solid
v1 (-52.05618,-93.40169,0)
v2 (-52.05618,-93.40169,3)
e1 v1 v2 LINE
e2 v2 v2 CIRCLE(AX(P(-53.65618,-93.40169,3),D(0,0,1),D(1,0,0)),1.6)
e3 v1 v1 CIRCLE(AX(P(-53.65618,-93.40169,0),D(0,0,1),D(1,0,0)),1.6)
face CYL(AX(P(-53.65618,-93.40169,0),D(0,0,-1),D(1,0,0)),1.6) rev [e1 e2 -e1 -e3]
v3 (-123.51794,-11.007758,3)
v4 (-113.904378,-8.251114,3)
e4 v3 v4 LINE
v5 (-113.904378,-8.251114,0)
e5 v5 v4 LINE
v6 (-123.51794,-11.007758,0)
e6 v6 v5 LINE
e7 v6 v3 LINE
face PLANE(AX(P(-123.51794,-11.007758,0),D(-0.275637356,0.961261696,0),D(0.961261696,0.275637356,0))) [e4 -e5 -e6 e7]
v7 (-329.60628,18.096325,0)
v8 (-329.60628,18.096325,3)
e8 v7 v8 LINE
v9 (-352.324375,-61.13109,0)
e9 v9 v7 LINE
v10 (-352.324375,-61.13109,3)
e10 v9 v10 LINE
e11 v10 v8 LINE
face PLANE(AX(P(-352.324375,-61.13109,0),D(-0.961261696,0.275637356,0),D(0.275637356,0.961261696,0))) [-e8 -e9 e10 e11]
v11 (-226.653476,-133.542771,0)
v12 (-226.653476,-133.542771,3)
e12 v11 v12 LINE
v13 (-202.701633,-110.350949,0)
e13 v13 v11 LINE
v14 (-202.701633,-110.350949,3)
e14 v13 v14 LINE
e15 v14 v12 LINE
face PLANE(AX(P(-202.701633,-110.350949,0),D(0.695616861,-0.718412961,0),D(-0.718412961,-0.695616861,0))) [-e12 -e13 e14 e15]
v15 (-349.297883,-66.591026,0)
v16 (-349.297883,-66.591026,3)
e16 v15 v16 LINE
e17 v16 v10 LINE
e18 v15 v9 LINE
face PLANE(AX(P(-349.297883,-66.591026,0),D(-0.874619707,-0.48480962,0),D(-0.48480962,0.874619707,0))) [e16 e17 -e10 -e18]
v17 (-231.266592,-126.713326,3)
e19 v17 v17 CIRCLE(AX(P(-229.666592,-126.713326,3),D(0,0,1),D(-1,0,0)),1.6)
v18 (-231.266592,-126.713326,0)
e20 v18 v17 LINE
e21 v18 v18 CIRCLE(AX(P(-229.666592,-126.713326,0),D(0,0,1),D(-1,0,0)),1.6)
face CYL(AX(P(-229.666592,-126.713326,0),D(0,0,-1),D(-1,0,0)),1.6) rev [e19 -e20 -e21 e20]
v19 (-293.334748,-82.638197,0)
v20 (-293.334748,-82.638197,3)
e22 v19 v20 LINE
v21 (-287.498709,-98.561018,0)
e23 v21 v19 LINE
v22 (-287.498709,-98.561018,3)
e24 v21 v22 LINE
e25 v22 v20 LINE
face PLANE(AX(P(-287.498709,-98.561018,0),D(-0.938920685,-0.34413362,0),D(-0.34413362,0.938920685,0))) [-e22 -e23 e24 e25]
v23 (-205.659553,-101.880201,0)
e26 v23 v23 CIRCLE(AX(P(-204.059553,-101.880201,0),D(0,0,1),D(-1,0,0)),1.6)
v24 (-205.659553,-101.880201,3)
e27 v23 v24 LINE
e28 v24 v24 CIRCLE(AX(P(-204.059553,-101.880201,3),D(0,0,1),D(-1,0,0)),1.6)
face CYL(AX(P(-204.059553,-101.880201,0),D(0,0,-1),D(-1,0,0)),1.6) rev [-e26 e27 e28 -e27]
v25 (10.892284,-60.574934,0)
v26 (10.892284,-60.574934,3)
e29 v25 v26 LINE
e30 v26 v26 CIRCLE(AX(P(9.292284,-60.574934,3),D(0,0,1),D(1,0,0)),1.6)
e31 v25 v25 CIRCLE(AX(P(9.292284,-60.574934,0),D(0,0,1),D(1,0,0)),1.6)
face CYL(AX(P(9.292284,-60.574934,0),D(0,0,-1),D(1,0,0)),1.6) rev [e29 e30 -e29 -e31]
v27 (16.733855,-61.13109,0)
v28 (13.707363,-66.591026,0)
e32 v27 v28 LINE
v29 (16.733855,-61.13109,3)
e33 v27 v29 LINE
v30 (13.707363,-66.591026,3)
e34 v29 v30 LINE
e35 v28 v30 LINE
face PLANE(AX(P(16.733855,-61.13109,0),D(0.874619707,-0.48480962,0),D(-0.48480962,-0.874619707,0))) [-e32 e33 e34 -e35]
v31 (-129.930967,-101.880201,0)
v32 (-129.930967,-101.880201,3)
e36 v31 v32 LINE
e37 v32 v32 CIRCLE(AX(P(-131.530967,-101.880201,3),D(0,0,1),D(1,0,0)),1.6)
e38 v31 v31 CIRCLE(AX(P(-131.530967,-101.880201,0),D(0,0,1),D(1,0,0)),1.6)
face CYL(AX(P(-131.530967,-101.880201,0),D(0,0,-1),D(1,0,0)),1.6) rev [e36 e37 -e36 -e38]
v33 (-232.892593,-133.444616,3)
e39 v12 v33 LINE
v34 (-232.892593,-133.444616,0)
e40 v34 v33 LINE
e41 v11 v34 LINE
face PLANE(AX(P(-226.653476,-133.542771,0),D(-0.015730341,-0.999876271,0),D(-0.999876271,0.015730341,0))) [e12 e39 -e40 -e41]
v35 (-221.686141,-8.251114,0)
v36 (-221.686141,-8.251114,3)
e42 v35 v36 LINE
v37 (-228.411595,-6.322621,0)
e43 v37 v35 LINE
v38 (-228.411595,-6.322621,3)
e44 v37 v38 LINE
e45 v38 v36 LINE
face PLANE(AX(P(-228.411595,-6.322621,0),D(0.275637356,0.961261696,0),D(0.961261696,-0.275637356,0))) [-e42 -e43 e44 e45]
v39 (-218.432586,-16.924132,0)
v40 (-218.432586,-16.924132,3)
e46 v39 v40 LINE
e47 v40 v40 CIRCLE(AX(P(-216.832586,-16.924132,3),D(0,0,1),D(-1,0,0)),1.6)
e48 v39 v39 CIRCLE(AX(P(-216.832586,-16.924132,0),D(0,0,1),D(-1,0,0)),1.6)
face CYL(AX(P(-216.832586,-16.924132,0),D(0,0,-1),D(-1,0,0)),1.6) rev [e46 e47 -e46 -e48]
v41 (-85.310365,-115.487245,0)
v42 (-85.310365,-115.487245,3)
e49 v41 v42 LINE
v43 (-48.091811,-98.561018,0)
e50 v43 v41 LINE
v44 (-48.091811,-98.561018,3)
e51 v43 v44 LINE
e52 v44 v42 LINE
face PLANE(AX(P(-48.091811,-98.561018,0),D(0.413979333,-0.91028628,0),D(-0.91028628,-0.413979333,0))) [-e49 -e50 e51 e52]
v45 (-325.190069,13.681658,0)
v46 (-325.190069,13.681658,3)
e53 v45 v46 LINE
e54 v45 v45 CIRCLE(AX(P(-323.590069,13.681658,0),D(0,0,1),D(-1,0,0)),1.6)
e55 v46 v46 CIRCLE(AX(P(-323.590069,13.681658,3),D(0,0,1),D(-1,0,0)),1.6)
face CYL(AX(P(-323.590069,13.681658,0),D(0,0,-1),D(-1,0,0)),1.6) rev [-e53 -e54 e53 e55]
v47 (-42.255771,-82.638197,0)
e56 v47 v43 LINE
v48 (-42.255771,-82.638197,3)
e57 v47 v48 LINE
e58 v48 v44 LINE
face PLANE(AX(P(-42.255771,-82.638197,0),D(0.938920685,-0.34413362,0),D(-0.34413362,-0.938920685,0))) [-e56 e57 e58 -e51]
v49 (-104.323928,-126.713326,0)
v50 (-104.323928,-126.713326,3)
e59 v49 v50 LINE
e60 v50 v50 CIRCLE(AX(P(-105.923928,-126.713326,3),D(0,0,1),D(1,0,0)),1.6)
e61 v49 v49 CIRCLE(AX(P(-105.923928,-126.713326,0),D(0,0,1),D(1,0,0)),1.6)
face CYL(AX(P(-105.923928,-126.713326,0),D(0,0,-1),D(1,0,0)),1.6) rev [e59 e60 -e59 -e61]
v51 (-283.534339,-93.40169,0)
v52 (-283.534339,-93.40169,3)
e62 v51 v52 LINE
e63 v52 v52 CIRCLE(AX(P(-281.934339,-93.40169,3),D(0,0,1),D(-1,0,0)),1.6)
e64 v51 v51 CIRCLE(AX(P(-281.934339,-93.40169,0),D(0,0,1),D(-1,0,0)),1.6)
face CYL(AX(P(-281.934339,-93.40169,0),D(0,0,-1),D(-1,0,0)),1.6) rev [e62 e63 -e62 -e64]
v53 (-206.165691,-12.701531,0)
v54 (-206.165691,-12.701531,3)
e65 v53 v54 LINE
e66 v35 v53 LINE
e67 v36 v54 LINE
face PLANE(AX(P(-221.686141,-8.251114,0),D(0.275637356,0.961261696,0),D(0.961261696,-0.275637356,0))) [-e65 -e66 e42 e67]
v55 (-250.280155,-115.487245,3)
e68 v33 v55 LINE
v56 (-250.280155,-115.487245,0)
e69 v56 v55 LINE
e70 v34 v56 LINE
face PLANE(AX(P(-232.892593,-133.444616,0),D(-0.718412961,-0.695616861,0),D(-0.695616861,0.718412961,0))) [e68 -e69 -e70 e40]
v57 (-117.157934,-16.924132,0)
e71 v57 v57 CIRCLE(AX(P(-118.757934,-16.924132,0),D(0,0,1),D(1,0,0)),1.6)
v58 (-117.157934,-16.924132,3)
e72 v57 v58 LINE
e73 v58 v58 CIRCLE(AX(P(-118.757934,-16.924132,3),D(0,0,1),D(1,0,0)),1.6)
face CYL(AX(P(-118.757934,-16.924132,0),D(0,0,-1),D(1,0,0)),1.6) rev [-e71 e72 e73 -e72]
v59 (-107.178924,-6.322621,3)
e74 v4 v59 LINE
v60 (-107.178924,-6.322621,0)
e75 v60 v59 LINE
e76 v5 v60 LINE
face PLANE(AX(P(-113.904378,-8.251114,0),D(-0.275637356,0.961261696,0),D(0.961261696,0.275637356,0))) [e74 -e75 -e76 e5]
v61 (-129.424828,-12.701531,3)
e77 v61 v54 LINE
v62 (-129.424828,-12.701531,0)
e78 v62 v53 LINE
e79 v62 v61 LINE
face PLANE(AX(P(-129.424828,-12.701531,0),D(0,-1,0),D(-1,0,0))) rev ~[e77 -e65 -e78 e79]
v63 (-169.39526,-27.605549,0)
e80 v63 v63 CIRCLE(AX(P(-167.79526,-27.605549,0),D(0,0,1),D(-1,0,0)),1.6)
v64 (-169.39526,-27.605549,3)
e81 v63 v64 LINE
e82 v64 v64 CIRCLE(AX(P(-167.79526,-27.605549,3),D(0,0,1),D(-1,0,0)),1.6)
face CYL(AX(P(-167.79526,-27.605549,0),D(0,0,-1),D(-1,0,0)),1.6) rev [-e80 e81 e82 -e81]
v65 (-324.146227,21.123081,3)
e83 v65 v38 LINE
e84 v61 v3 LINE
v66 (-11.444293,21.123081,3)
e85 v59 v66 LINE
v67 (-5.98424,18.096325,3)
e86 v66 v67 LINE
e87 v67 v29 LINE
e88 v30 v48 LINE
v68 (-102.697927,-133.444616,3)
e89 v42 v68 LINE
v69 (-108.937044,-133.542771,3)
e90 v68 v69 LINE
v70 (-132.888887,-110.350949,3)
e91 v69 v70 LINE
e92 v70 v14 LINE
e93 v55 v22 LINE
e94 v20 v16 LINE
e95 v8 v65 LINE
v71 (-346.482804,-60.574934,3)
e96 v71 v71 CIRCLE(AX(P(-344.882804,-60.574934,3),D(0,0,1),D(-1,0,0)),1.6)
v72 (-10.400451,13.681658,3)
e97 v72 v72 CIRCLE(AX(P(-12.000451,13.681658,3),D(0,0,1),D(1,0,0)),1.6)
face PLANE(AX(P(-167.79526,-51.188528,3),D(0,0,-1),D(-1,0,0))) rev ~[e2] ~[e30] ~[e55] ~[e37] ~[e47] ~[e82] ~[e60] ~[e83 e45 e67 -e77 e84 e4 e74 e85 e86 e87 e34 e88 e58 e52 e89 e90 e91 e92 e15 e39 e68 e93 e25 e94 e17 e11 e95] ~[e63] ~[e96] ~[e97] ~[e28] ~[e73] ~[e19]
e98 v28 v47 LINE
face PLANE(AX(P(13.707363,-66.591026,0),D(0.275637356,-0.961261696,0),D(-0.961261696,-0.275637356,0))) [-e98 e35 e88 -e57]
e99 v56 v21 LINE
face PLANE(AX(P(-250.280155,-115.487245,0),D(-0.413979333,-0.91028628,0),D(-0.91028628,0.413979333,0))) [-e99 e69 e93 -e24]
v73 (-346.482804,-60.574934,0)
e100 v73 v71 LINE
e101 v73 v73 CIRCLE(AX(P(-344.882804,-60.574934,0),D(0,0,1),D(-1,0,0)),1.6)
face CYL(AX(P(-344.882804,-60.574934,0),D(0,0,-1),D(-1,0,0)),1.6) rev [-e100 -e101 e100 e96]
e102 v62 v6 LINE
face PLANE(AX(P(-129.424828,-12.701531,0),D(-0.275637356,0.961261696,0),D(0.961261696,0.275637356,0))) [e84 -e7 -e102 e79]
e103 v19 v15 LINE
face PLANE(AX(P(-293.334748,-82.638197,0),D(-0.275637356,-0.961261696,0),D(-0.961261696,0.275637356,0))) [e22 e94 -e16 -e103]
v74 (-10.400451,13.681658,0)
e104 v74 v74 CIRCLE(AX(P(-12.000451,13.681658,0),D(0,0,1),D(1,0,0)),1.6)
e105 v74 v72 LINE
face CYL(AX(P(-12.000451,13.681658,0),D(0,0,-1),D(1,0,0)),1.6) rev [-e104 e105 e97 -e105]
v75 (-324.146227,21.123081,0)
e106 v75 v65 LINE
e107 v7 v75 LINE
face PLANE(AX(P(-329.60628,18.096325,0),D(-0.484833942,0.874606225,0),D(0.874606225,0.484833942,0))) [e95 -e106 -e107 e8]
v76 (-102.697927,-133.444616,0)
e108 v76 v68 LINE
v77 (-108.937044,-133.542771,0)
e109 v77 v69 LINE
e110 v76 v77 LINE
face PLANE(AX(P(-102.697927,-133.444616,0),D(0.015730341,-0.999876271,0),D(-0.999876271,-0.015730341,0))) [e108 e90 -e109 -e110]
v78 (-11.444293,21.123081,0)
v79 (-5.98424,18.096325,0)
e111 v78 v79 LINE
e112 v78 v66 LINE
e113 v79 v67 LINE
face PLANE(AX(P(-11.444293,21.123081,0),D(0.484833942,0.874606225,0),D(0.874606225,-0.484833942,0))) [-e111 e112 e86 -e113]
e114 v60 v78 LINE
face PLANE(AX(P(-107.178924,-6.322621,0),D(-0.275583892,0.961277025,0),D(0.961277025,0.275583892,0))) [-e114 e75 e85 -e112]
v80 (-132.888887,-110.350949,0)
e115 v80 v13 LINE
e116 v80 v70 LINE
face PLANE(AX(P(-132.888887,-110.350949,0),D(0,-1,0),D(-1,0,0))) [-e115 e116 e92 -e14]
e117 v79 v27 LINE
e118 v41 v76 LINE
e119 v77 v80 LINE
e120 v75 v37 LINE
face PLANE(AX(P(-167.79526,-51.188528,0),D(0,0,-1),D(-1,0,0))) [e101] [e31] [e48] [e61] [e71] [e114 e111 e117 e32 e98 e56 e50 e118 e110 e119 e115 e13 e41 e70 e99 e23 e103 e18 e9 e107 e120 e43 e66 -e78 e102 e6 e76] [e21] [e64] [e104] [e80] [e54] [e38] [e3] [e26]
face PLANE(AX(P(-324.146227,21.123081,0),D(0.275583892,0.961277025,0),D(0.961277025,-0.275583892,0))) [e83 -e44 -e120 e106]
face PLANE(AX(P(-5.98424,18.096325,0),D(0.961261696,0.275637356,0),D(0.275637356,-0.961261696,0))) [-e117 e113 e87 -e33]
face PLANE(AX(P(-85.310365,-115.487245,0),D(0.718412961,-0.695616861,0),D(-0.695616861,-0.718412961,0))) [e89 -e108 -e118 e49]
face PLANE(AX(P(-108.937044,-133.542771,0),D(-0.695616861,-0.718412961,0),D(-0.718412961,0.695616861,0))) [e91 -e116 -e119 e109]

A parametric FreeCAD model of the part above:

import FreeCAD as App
import Part
import Sketcher
from FreeCAD import Vector
Q = App.Units.Quantity


def add_polygon(sketch, points):
    """Adds a closed chain of lines whose ends are joined by coincident constraints."""
    first, n = sketch.GeometryCount, len(points)
    for a, b in zip(points, points[1:] + points[:1]):
        sketch.addGeometry(Part.LineSegment(App.Vector(*a, 0), App.Vector(*b, 0)), False)
    for i in range(n):
        sketch.addConstraint(Sketcher.Constraint("Coincident", first + i, 2, first + (i + 1) % n, 1))

doc = App.newDocument("Part")
body = doc.addObject("PartDesign::Body", "Body")

# Sketch on XY plane
sketch1 = body.newObject("Sketcher::SketchObject", "Sketch")
sketch1.AttachmentSupport = (doc.getObject("XY_Plane"), [""])
sketch1.MapMode = "FlatFace"
add_polygon(sketch1, [(-228.4, -6.3), (-324.1, 21.1), (-329.6, 18.1), (-352.3, -61.1), (-349.3, -66.6), (-293.3, -82.6), (-287.5, -98.6), (-250.3, -115.5), (-232.9, -133.4), (-226.7, -133.5), (-202.7, -110.4), (-132.9, -110.4), (-108.9, -133.5), (-102.7, -133.4), (-85.3, -115.5), (-48.1, -98.6), (-42.3, -82.6), (13.7, -66.6), (16.7, -61.1), (-6, 18.1), (-11.4, 21.1), (-107.2, -6.3), (-113.9, -8.3), (-123.5, -11), (-129.4, -12.7), (-206.2, -12.7), (-221.7, -8.3)])  # lines 0-26
sketch1.addGeometry(Part.Circle(Vector(-53.7, -93.4, 0), Vector(0, 0, 1), 1.6), False)  # 27
sketch1.addGeometry(Part.Circle(Vector(-105.9, -126.7, 0), Vector(0, 0, 1), 1.6), False)  # 28
sketch1.addGeometry(Part.Circle(Vector(-131.5, -101.9, 0), Vector(0, 0, 1), 1.6), False)  # 29
sketch1.addGeometry(Part.Circle(Vector(9.3, -60.6, 0), Vector(0, 0, 1), 1.6), False)  # 30
sketch1.addGeometry(Part.Circle(Vector(-229.7, -126.7, 0), Vector(0, 0, 1), 1.6), False)  # 31
sketch1.addGeometry(Part.Circle(Vector(-204.1, -101.9, 0), Vector(0, 0, 1), 1.6), False)  # 32
sketch1.addGeometry(Part.Circle(Vector(-281.9, -93.4, 0), Vector(0, 0, 1), 1.6), False)  # 33
sketch1.addGeometry(Part.Circle(Vector(-344.9, -60.6, 0), Vector(0, 0, 1), 1.6), False)  # 34
sketch1.addGeometry(Part.Circle(Vector(-12, 13.7, 0), Vector(0, 0, 1), 1.6), False)  # 35
sketch1.addGeometry(Part.Circle(Vector(-118.8, -16.9, 0), Vector(0, 0, 1), 1.6), False)  # 36
sketch1.addGeometry(Part.Circle(Vector(-167.8, -27.6, 0), Vector(0, 0, 1), 1.6), False)  # 37
sketch1.addGeometry(Part.Circle(Vector(-216.8, -16.9, 0), Vector(0, 0, 1), 1.6), False)  # 38
sketch1.addGeometry(Part.Circle(Vector(-323.6, 13.7, 0), Vector(0, 0, 1), 1.6), False)  # 39
sketch1.addConstraint([
    Sketcher.Constraint("Horizontal", 10),
    Sketcher.Constraint("Horizontal", 24),
    Sketcher.Constraint("Equal", 27, 28),
    Sketcher.Constraint("Equal", 28, 29),
    Sketcher.Constraint("Equal", 29, 30),
    Sketcher.Constraint("Equal", 30, 31),
    Sketcher.Constraint("Equal", 31, 32),
    Sketcher.Constraint("Equal", 32, 33),
    Sketcher.Constraint("Equal", 33, 34),
    Sketcher.Constraint("Equal", 34, 35),
    Sketcher.Constraint("Equal", 35, 36),
    Sketcher.Constraint("Equal", 36, 37),
    Sketcher.Constraint("Equal", 37, 38),
    Sketcher.Constraint("Equal", 38, 39),
    Sketcher.Constraint("Perpendicular", 2, 4),
    Sketcher.Constraint("Perpendicular", 7, 9),
    Sketcher.Constraint("Perpendicular", 11, 13),
    Sketcher.Constraint("Perpendicular", 16, 18),
    Sketcher.Constraint("Perpendicular", 18, 21),
    Sketcher.Constraint("Parallel", 21, 22),
    Sketcher.Constraint("Parallel", 22, 23),
    Sketcher.Constraint("Parallel", 4, 25),
    Sketcher.Constraint("Parallel", 25, 26),
    Sketcher.Constraint("Horizontal", 28, 3, 31, 3),
    Sketcher.Constraint("Horizontal", 29, 3, 32, 3),
    Sketcher.Constraint("Horizontal", 27, 3, 33, 3),
    Sketcher.Constraint("Horizontal", 30, 3, 34, 3),
    Sketcher.Constraint("Horizontal", 36, 3, 38, 3),
    Sketcher.Constraint("Horizontal", 35, 3, 39, 3),
    Sketcher.Constraint("Horizontal", 8, 2, 11, 2),
    Sketcher.Constraint("Horizontal", 7, 2, 12, 2),
    Sketcher.Constraint("Horizontal", 6, 2, 13, 2),
    Sketcher.Constraint("Horizontal", 5, 2, 14, 2),
    Sketcher.Constraint("Horizontal", 4, 2, 15, 2),
    Sketcher.Constraint("Horizontal", 3, 2, 16, 2),
    Sketcher.Constraint("Horizontal", 2, 2, 17, 2),
    Sketcher.Constraint("Horizontal", 1, 2, 18, 2),
    Sketcher.Constraint("Horizontal", 0, 2, 19, 2),
    Sketcher.Constraint("Horizontal", 21, 2, 25, 2),
    Sketcher.Constraint("Horizontal", 20, 2, 26, 2),
    Sketcher.Constraint("Equal", 9, 11),
    Sketcher.Constraint("Equal", 8, 12),
    Sketcher.Constraint("Equal", 6, 14),
    Sketcher.Constraint("Equal", 5, 15),
    Sketcher.Constraint("Equal", 4, 16),
    Sketcher.Constraint("Equal", 3, 17),
    Sketcher.Constraint("Equal", 1, 19),
    Sketcher.Constraint("Equal", 0, 20),
    Sketcher.Constraint("Diameter", 27, Q("3.2 mm")),
    Sketcher.Constraint("Angle", 2, Q("-106 deg")),
    Sketcher.Constraint("Angle", 3, Q("-61 deg")),
    Sketcher.Constraint("DistanceX", 7, 2, 31, 3, Q("3.226002 mm")),
    Sketcher.Constraint("DistanceX", 28, 3, 12, 2, Q("3.226002 mm")),
    Sketcher.Constraint("DistanceY", 29, 3, -1, 1, Q("101.880201 mm")),
    Sketcher.Constraint("DistanceX", 32, 3, 35, 3, Q("192.059102 mm")),
    Sketcher.Constraint("DistanceY", 33, 3, 2, 2, Q("32.2706 mm")),
    Sketcher.Constraint("DistanceY", 20, 2, 19, 2, Q("27.445702 mm")),
    Sketcher.Constraint("DistanceY", 36, 3, 23, 2, Q("4.2226 mm")),
    Sketcher.Constraint("Distance", 1, Q("6.24287 mm")),
    Sketcher.Constraint("Distance", 3, Q("6.242641 mm")),
    Sketcher.Constraint("Distance", 7, Q("24.995889 mm")),
    Sketcher.Constraint("Distance", 8, Q("6.23989 mm")),
    Sketcher.Constraint("DistanceX", 10, 1, 10, 2, Q("69.812745 mm")),
    Sketcher.Constraint("DistanceX", 24, 2, 24, 1, Q("76.740863 mm")),
    Sketcher.Constraint("DistanceX", 27, 3, -1, 1, Q("53.65618 mm")),
    Sketcher.Constraint("DistanceY", 27, 3, -1, 1, Q("93.40169 mm")),
    Sketcher.Constraint("DistanceX", 28, 3, -1, 1, Q("105.923928 mm")),
    Sketcher.Constraint("DistanceX", 31, 3, -1, 1, Q("229.666592 mm")),
    Sketcher.Constraint("DistanceX", 33, 3, -1, 1, Q("281.934339 mm")),
    Sketcher.Constraint("DistanceX", 35, 3, -1, 1, Q("12.000451 mm")),
    Sketcher.Constraint("DistanceY", -1, 1, 35, 3, Q("13.681658 mm")),
    Sketcher.Constraint("DistanceY", 36, 3, -1, 1, Q("16.924132 mm")),
    Sketcher.Constraint("DistanceX", 37, 3, -1, 1, Q("167.79526 mm")),
    Sketcher.Constraint("DistanceY", 37, 3, -1, 1, Q("27.605549 mm")),
    Sketcher.Constraint("DistanceX", 39, 3, -1, 1, Q("323.590069 mm")),
    Sketcher.Constraint("DistanceY", -1, 1, 0, 2, Q("21.123081 mm")),
    Sketcher.Constraint("DistanceX", 1, 2, -1, 1, Q("329.60628 mm")),
    Sketcher.Constraint("DistanceX", 4, 2, -1, 1, Q("293.334748 mm")),
    Sketcher.Constraint("DistanceX", 5, 2, -1, 1, Q("287.498709 mm")),
    Sketcher.Constraint("DistanceY", 5, 2, -1, 1, Q("98.561018 mm")),
    Sketcher.Constraint("DistanceY", 8, 2, -1, 1, Q("133.542771 mm")),
    Sketcher.Constraint("DistanceY", 9, 2, -1, 1, Q("110.350949 mm")),
    Sketcher.Constraint("DistanceX", 21, 2, -1, 1, Q("113.904378 mm")),
    Sketcher.Constraint("DistanceX", 22, 2, -1, 1, Q("123.51794 mm")),
    Sketcher.Constraint("DistanceX", 29, 3, 28, 3, Q("25.607039 mm")),
    Sketcher.Constraint("DistanceY", 28, 3, 30, 3, Q("66.138392 mm")),
    Sketcher.Constraint("DistanceX", 29, 3, 30, 3, Q("140.823251 mm")),
    Sketcher.Constraint("DistanceX", 34, 3, 32, 3, Q("140.823251 mm")),
    Sketcher.Constraint("DistanceX", 32, 3, 36, 3, Q("85.301619 mm")),
    Sketcher.Constraint("DistanceX", 0, 2, 38, 3, Q("107.313641 mm")),
    Sketcher.Constraint("DistanceY", 34, 3, 1, 2, Q("78.671259 mm")),
    Sketcher.Constraint("DistanceX", 2, 2, 34, 3, Q("7.441571 mm")),
    Sketcher.Constraint("DistanceY", 31, 3, 6, 2, Q("11.226081 mm")),
])
pad1 = body.newObject("PartDesign::Pad", "Pad")
pad1.Profile = sketch1
pad1.Length = 3

doc.recompute()
